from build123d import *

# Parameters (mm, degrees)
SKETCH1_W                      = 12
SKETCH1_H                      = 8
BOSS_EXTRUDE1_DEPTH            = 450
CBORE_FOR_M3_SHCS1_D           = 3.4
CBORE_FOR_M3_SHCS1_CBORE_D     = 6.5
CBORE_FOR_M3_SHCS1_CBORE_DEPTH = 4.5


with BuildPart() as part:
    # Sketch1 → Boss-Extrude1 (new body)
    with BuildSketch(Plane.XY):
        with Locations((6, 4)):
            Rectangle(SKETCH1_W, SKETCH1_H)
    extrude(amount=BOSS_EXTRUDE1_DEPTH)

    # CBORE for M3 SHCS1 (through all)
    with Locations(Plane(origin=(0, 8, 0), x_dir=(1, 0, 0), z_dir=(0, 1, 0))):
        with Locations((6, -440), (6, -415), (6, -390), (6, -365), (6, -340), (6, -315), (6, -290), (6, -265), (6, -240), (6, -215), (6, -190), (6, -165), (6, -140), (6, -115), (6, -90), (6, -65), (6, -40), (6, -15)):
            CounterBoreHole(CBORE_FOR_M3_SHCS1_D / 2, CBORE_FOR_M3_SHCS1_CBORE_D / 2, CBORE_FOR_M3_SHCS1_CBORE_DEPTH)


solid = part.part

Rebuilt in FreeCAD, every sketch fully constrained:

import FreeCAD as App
import Part
import Sketcher
from FreeCAD import Vector
Q = App.Units.Quantity


def add_polygon(sketch, points):
    """Adds a closed chain of lines whose ends are joined by coincident constraints."""
    first, n = sketch.GeometryCount, len(points)
    for a, b in zip(points, points[1:] + points[:1]):
        sketch.addGeometry(Part.LineSegment(App.Vector(*a, 0), App.Vector(*b, 0)), False)
    for i in range(n):
        sketch.addConstraint(Sketcher.Constraint("Coincident", first + i, 2, first + (i + 1) % n, 1))

doc = App.newDocument("Part")
body = doc.addObject("PartDesign::Body", "Body")

sketch1 = body.newObject("Sketcher::SketchObject", "Sketch")
sketch1.AttachmentSupport = (doc.getObject("XY_Plane"), [""])
sketch1.MapMode = "FlatFace"
add_polygon(sketch1, [(0, 8), (0, 0), (12, 0), (12, 8)])
sketch1.addConstraint([
    Sketcher.Constraint("Vertical", 0),
    Sketcher.Constraint("Horizontal", 1),
    Sketcher.Constraint("Vertical", 2),
    Sketcher.Constraint("Horizontal", 3),
    Sketcher.Constraint("Coincident", 0, 2, -1, 1),
    Sketcher.Constraint("DistanceX", 1, 1, 1, 2, Q("12 mm")),
    Sketcher.Constraint("DistanceY", 0, 2, 0, 1, Q("8 mm")),
])
pad1 = body.newObject("PartDesign::Pad", "Pad")
pad1.Profile = sketch1
pad1.Length = 450

sketch2 = body.newObject("Sketcher::SketchObject", "Sketch001")
sketch2.AttachmentSupport = (doc.getObject("XZ_Plane"), [""])
sketch2.MapMode = "FlatFace"
sketch2.AttachmentOffset = App.Placement(Vector(0, 0, -8), App.Rotation())
sketch2.addGeometry([
    Part.Circle(Vector(6, 440, 0), Vector(0, 0, 1), 1.7),
    Part.Circle(Vector(6, 415, 0), Vector(0, 0, 1), 1.7),
    Part.Circle(Vector(6, 390, 0), Vector(0, 0, 1), 1.7),
    Part.Circle(Vector(6, 365, 0), Vector(0, 0, 1), 1.7),
    Part.Circle(Vector(6, 340, 0), Vector(0, 0, 1), 1.7),
    Part.Circle(Vector(6, 315, 0), Vector(0, 0, 1), 1.7),
    Part.Circle(Vector(6, 290, 0), Vector(0, 0, 1), 1.7),
    Part.Circle(Vector(6, 265, 0), Vector(0, 0, 1), 1.7),
    Part.Circle(Vector(6, 240, 0), Vector(0, 0, 1), 1.7),
    Part.Circle(Vector(6, 215, 0), Vector(0, 0, 1), 1.7),
    Part.Circle(Vector(6, 190, 0), Vector(0, 0, 1), 1.7),
    Part.Circle(Vector(6, 165, 0), Vector(0, 0, 1), 1.7),
    Part.Circle(Vector(6, 140, 0), Vector(0, 0, 1), 1.7),
    Part.Circle(Vector(6, 115, 0), Vector(0, 0, 1), 1.7),
    Part.Circle(Vector(6, 90, 0), Vector(0, 0, 1), 1.7),
    Part.Circle(Vector(6, 65, 0), Vector(0, 0, 1), 1.7),
    Part.Circle(Vector(6, 40, 0), Vector(0, 0, 1), 1.7),
    Part.Circle(Vector(6, 15, 0), Vector(0, 0, 1), 1.7),
], False)
sketch2.addConstraint([
    Sketcher.Constraint("Equal", 0, 1),
    Sketcher.Constraint("Equal", 1, 2),
    Sketcher.Constraint("Equal", 2, 3),
    Sketcher.Constraint("Equal", 3, 4),
    Sketcher.Constraint("Equal", 4, 5),
    Sketcher.Constraint("Equal", 5, 6),
    Sketcher.Constraint("Equal", 6, 7),
    Sketcher.Constraint("Equal", 7, 8),
    Sketcher.Constraint("Equal", 8, 9),
    Sketcher.Constraint("Equal", 9, 10),
    Sketcher.Constraint("Equal", 10, 11),
    Sketcher.Constraint("Equal", 11, 12),
    Sketcher.Constraint("Equal", 12, 13),
    Sketcher.Constraint("Equal", 13, 14),
    Sketcher.Constraint("Equal", 14, 15),
    Sketcher.Constraint("Equal", 15, 16),
    Sketcher.Constraint("Equal", 16, 17),
    Sketcher.Constraint("Vertical", 0, 3, 1, 3),
    Sketcher.Constraint("Vertical", 1, 3, 2, 3),
    Sketcher.Constraint("Vertical", 2, 3, 3, 3),
    Sketcher.Constraint("Vertical", 3, 3, 4, 3),
    Sketcher.Constraint("Vertical", 4, 3, 5, 3),
    Sketcher.Constraint("Vertical", 5, 3, 6, 3),
    Sketcher.Constraint("Vertical", 6, 3, 7, 3),
    Sketcher.Constraint("Vertical", 7, 3, 8, 3),
    Sketcher.Constraint("Vertical", 8, 3, 9, 3),
    Sketcher.Constraint("Vertical", 9, 3, 10, 3),
    Sketcher.Constraint("Vertical", 10, 3, 11, 3),
    Sketcher.Constraint("Vertical", 11, 3, 12, 3),
    Sketcher.Constraint("Vertical", 12, 3, 13, 3),
    Sketcher.Constraint("Vertical", 13, 3, 14, 3),
    Sketcher.Constraint("Vertical", 14, 3, 15, 3),
    Sketcher.Constraint("Vertical", 15, 3, 16, 3),
    Sketcher.Constraint("Vertical", 16, 3, 17, 3),
    Sketcher.Constraint("Diameter", 0, Q("3.4 mm")),
    Sketcher.Constraint("DistanceX", -1, 1, 0, 3, Q("6 mm")),
    Sketcher.Constraint("DistanceY", -1, 1, 0, 3, Q("440 mm")),
    Sketcher.Constraint("DistanceY", -1, 1, 1, 3, Q("415 mm")),
    Sketcher.Constraint("DistanceY", -1, 1, 2, 3, Q("390 mm")),
    Sketcher.Constraint("DistanceY", -1, 1, 3, 3, Q("365 mm")),
    Sketcher.Constraint("DistanceY", -1, 1, 4, 3, Q("340 mm")),
    Sketcher.Constraint("DistanceY", -1, 1, 5, 3, Q("315 mm")),
    Sketcher.Constraint("DistanceY", -1, 1, 6, 3, Q("290 mm")),
    Sketcher.Constraint("DistanceY", -1, 1, 7, 3, Q("265 mm")),
    Sketcher.Constraint("DistanceY", -1, 1, 8, 3, Q("240 mm")),
    Sketcher.Constraint("DistanceY", -1, 1, 9, 3, Q("215 mm")),
    Sketcher.Constraint("DistanceY", -1, 1, 10, 3, Q("190 mm")),
    Sketcher.Constraint("DistanceY", -1, 1, 11, 3, Q("165 mm")),
    Sketcher.Constraint("DistanceY", -1, 1, 12, 3, Q("140 mm")),
    Sketcher.Constraint("DistanceY", -1, 1, 13, 3, Q("115 mm")),
    Sketcher.Constraint("DistanceY", -1, 1, 14, 3, Q("90 mm")),
    Sketcher.Constraint("DistanceY", -1, 1, 15, 3, Q("65 mm")),
    Sketcher.Constraint("DistanceY", -1, 1, 16, 3, Q("40 mm")),
    Sketcher.Constraint("DistanceY", -1, 1, 17, 3, Q("15 mm")),
])
doc.recompute()
hole = body.newObject("PartDesign::Hole", "Hole")
hole.Profile = sketch2
hole.ThreadType = "None"
hole.Diameter = 3.4
hole.DepthType = "ThroughAll"
hole.HoleCutType = "Counterbore"
hole.HoleCutDiameter = 6.5
hole.HoleCutDepth = 4.5
hole.Reversed = True

doc.recompute()
